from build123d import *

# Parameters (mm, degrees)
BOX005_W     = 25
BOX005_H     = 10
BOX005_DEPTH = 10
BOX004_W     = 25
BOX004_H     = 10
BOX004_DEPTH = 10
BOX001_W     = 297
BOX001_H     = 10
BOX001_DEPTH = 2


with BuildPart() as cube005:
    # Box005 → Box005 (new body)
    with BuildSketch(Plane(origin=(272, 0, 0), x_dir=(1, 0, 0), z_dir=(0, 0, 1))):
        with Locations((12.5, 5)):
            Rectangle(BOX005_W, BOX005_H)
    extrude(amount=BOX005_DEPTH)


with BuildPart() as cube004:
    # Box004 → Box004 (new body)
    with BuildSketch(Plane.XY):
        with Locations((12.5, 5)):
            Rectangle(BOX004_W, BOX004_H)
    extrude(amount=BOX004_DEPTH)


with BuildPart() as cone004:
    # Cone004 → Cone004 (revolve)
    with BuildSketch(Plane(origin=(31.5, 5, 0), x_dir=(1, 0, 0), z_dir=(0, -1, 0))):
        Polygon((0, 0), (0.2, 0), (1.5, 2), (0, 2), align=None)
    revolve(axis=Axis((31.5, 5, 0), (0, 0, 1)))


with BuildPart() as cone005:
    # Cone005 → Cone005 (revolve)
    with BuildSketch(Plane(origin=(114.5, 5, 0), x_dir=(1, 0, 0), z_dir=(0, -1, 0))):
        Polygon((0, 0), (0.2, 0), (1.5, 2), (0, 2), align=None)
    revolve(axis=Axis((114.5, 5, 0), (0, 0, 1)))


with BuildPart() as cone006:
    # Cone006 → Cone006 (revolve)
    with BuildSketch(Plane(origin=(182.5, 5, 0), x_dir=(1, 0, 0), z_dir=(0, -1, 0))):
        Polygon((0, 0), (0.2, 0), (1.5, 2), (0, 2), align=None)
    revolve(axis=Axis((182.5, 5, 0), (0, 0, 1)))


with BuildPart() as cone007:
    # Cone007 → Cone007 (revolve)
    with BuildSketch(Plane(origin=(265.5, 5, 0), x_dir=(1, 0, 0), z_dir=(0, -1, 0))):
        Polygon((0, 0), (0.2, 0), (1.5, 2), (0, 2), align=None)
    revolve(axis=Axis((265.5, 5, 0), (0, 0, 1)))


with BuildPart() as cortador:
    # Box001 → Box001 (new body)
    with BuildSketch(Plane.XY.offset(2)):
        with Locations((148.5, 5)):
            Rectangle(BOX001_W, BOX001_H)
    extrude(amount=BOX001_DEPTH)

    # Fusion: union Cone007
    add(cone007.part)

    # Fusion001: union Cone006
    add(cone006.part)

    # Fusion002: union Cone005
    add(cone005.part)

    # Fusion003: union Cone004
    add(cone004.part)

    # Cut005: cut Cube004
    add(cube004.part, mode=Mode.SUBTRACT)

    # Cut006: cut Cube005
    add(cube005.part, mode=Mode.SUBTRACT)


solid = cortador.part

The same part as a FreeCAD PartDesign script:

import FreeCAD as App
import Part
import Sketcher


def add_polygon(sketch, points):
    """Adds a closed chain of lines whose ends are joined by coincident constraints."""
    first, n = sketch.GeometryCount, len(points)
    for a, b in zip(points, points[1:] + points[:1]):
        sketch.addGeometry(Part.LineSegment(App.Vector(*a, 0), App.Vector(*b, 0)), False)
    for i in range(n):
        sketch.addConstraint(Sketcher.Constraint("Coincident", first + i, 2, first + (i + 1) % n, 1))

doc = App.newDocument("Part")
body = doc.addObject("PartDesign::Body", "Body")

sketch1 = doc.addObject("Sketcher::SketchObject", "Sketch")
body.addObject(sketch1)
sketch1.AttachmentSupport = (doc.XY_Plane, [""])
sketch1.MapMode = "FlatFace"
add_polygon(sketch1, [(272, 10), (272, 0), (297, 0), (297, 10)])
sketch1.addConstraint([
    Sketcher.Constraint("Vertical", 0),
    Sketcher.Constraint("Horizontal", 1),
    Sketcher.Constraint("Vertical", 2),
    Sketcher.Constraint("Horizontal", 3),
    Sketcher.Constraint("PointOnObject", 0, 2, -1),
    Sketcher.Constraint("DistanceX", 1, 1, 1, 2, 25.0),
    Sketcher.Constraint("DistanceY", 0, 2, 0, 1, 10.0),
    Sketcher.Constraint("DistanceX", -1, 1, 0, 2, 272.0),
])
pad1 = doc.addObject("PartDesign::Pad", "Pad")
body.addObject(pad1)
pad1.Profile = sketch1
pad1.Length = 10
body2 = doc.addObject("PartDesign::Body", "Body001")

sketch2 = doc.addObject("Sketcher::SketchObject", "Sketch001")
body2.addObject(sketch2)
sketch2.AttachmentSupport = (doc.getObject("XY_Plane001"), [""])
sketch2.MapMode = "FlatFace"
add_polygon(sketch2, [(0, 10), (0, 0), (25, 0), (25, 10)])
sketch2.addConstraint([
    Sketcher.Constraint("Vertical", 0),
    Sketcher.Constraint("Horizontal", 1),
    Sketcher.Constraint("Vertical", 2),
    Sketcher.Constraint("Horizontal", 3),
    Sketcher.Constraint("Coincident", 0, 2, -1, 1),
    Sketcher.Constraint("DistanceX", 1, 1, 1, 2, 25.0),
    Sketcher.Constraint("DistanceY", 0, 2, 0, 1, 10.0),
])
pad2 = doc.addObject("PartDesign::Pad", "Pad001")
body2.addObject(pad2)
pad2.Profile = sketch2
pad2.Length = 10
body3 = doc.addObject("PartDesign::Body", "Body002")

sketch3 = doc.addObject("Sketcher::SketchObject", "Sketch002")
body3.addObject(sketch3)
sketch3.AttachmentSupport = (doc.getObject("XZ_Plane002"), [""])
sketch3.MapMode = "FlatFace"
sketch3.AttachmentOffset = App.Placement(App.Vector(0, 0, -5), App.Rotation())
add_polygon(sketch3, [(31.5, 0), (31.7, 0), (33, 2), (31.5, 2)])
sketch3.addGeometry(Part.LineSegment(App.Vector(31.5, 0, 0), App.Vector(31.5, 2, 0)), True)
sketch3.addConstraint([
    Sketcher.Constraint("Horizontal", 0),
    Sketcher.Constraint("Horizontal", 2),
    Sketcher.Constraint("Vertical", 3),
    Sketcher.Constraint("Vertical", 4),
    Sketcher.Constraint("Coincident", 4, 1, 3, 2),
    Sketcher.Constraint("PointOnObject", 0, 2, -1),
    Sketcher.Constraint("Horizontal", 1, 2, 4, 2),
    Sketcher.Constraint("DistanceY", 3, 2, 3, 1, 2.0),
    Sketcher.Constraint("DistanceX", 0, 1, 0, 2, 0.2),
    Sketcher.Constraint("DistanceX", 2, 2, 2, 1, 1.5),
    Sketcher.Constraint("DistanceX", -1, 1, 1, 2, 33.0),
])
revolution = doc.addObject("PartDesign::Revolution", "Revolution")
body3.addObject(revolution)
revolution.Profile = sketch3
revolution.ReferenceAxis = (sketch3, ["Axis0"])
revolution.Angle = 360
body4 = doc.addObject("PartDesign::Body", "Body003")

sketch4 = doc.addObject("Sketcher::SketchObject", "Sketch003")
body4.addObject(sketch4)
sketch4.AttachmentSupport = (doc.getObject("XZ_Plane003"), [""])
sketch4.MapMode = "FlatFace"
sketch4.AttachmentOffset = App.Placement(App.Vector(0, 0, -5), App.Rotation())
add_polygon(sketch4, [(114.5, 0), (114.7, 0), (116, 2), (114.5, 2)])
sketch4.addGeometry(Part.LineSegment(App.Vector(114.5, 0, 0), App.Vector(114.5, 2, 0)), True)
sketch4.addConstraint([
    Sketcher.Constraint("Horizontal", 0),
    Sketcher.Constraint("Horizontal", 2),
    Sketcher.Constraint("Vertical", 3),
    Sketcher.Constraint("Vertical", 4),
    Sketcher.Constraint("Coincident", 4, 1, 3, 2),
    Sketcher.Constraint("PointOnObject", 0, 2, -1),
    Sketcher.Constraint("Horizontal", 1, 2, 4, 2),
    Sketcher.Constraint("DistanceY", 3, 2, 3, 1, 2.0),
    Sketcher.Constraint("DistanceX", 0, 1, 0, 2, 0.2),
    Sketcher.Constraint("DistanceX", 2, 2, 2, 1, 1.5),
    Sketcher.Constraint("DistanceX", -1, 1, 1, 2, 116.0),
])
revolution2 = doc.addObject("PartDesign::Revolution", "Revolution001")
body4.addObject(revolution2)
revolution2.Profile = sketch4
revolution2.ReferenceAxis = (sketch4, ["Axis0"])
revolution2.Angle = 360
body5 = doc.addObject("PartDesign::Body", "Body004")

sketch5 = doc.addObject("Sketcher::SketchObject", "Sketch004")
body5.addObject(sketch5)
sketch5.AttachmentSupport = (doc.getObject("XZ_Plane004"), [""])
sketch5.MapMode = "FlatFace"
sketch5.AttachmentOffset = App.Placement(App.Vector(0, 0, -5), App.Rotation())
add_polygon(sketch5, [(182.5, 0), (182.7, 0), (184, 2), (182.5, 2)])
sketch5.addGeometry(Part.LineSegment(App.Vector(182.5, 0, 0), App.Vector(182.5, 2, 0)), True)
sketch5.addConstraint([
    Sketcher.Constraint("Horizontal", 0),
    Sketcher.Constraint("Horizontal", 2),
    Sketcher.Constraint("Vertical", 3),
    Sketcher.Constraint("Vertical", 4),
    Sketcher.Constraint("Coincident", 4, 1, 3, 2),
    Sketcher.Constraint("PointOnObject", 0, 2, -1),
    Sketcher.Constraint("Horizontal", 1, 2, 4, 2),
    Sketcher.Constraint("DistanceY", 3, 2, 3, 1, 2.0),
    Sketcher.Constraint("DistanceX", 0, 1, 0, 2, 0.2),
    Sketcher.Constraint("DistanceX", 2, 2, 2, 1, 1.5),
    Sketcher.Constraint("DistanceX", -1, 1, 1, 2, 184.0),
])
revolution3 = doc.addObject("PartDesign::Revolution", "Revolution002")
body5.addObject(revolution3)
revolution3.Profile = sketch5
revolution3.ReferenceAxis = (sketch5, ["Axis0"])
revolution3.Angle = 360
body6 = doc.addObject("PartDesign::Body", "Body005")

sketch6 = doc.addObject("Sketcher::SketchObject", "Sketch005")
body6.addObject(sketch6)
sketch6.AttachmentSupport = (doc.getObject("XZ_Plane005"), [""])
sketch6.MapMode = "FlatFace"
sketch6.AttachmentOffset = App.Placement(App.Vector(0, 0, -5), App.Rotation())
add_polygon(sketch6, [(265.5, 0), (265.7, 0), (267, 2), (265.5, 2)])
sketch6.addGeometry(Part.LineSegment(App.Vector(265.5, 0, 0), App.Vector(265.5, 2, 0)), True)
sketch6.addConstraint([
    Sketcher.Constraint("Horizontal", 0),
    Sketcher.Constraint("Horizontal", 2),
    Sketcher.Constraint("Vertical", 3),
    Sketcher.Constraint("Vertical", 4),
    Sketcher.Constraint("Coincident", 4, 1, 3, 2),
    Sketcher.Constraint("PointOnObject", 0, 2, -1),
    Sketcher.Constraint("Horizontal", 1, 2, 4, 2),
    Sketcher.Constraint("DistanceY", 3, 2, 3, 1, 2.0),
    Sketcher.Constraint("DistanceX", 0, 1, 0, 2, 0.2),
    Sketcher.Constraint("DistanceX", 2, 2, 2, 1, 1.5),
    Sketcher.Constraint("DistanceX", -1, 1, 1, 2, 267.0),
])
revolution4 = doc.addObject("PartDesign::Revolution", "Revolution003")
body6.addObject(revolution4)
revolution4.Profile = sketch6
revolution4.ReferenceAxis = (sketch6, ["Axis0"])
revolution4.Angle = 360
body7 = doc.addObject("PartDesign::Body", "Body006")

sketch7 = doc.addObject("Sketcher::SketchObject", "Sketch006")
body7.addObject(sketch7)
sketch7.AttachmentSupport = (doc.getObject("XY_Plane006"), [""])
sketch7.MapMode = "FlatFace"
sketch7.AttachmentOffset = App.Placement(App.Vector(0, 0, 2), App.Rotation())
add_polygon(sketch7, [(0, 10), (0, 0), (297, 0), (297, 10)])
sketch7.addConstraint([
    Sketcher.Constraint("Vertical", 0),
    Sketcher.Constraint("Horizontal", 1),
    Sketcher.Constraint("Vertical", 2),
    Sketcher.Constraint("Horizontal", 3),
    Sketcher.Constraint("Coincident", 0, 2, -1, 1),
    Sketcher.Constraint("DistanceX", 1, 1, 1, 2, 297.0),
    Sketcher.Constraint("DistanceY", 0, 2, 0, 1, 10.0),
])
pad3 = doc.addObject("PartDesign::Pad", "Pad002")
body7.addObject(pad3)
pad3.Profile = sketch7
pad3.Length = 2
doc.recompute()

boolean = doc.addObject("PartDesign::Boolean", "Boolean")
body7.addObject(boolean)
boolean.Type = "Fuse"
boolean.addObjects([body6])
doc.recompute()

boolean2 = doc.addObject("PartDesign::Boolean", "Boolean001")
body7.addObject(boolean2)
boolean2.Type = "Fuse"
boolean2.addObjects([body5])
doc.recompute()

boolean3 = doc.addObject("PartDesign::Boolean", "Boolean002")
body7.addObject(boolean3)
boolean3.Type = "Fuse"
boolean3.addObjects([body4])
doc.recompute()

boolean4 = doc.addObject("PartDesign::Boolean", "Boolean003")
body7.addObject(boolean4)
boolean4.Type = "Fuse"
boolean4.addObjects([body3])
doc.recompute()

boolean5 = doc.addObject("PartDesign::Boolean", "Boolean004")
body7.addObject(boolean5)
boolean5.Type = "Cut"
boolean5.addObjects([body2])
doc.recompute()

boolean6 = doc.addObject("PartDesign::Boolean", "Boolean005")
body7.addObject(boolean6)
boolean6.Type = "Cut"
boolean6.addObjects([body])

doc.recompute()
